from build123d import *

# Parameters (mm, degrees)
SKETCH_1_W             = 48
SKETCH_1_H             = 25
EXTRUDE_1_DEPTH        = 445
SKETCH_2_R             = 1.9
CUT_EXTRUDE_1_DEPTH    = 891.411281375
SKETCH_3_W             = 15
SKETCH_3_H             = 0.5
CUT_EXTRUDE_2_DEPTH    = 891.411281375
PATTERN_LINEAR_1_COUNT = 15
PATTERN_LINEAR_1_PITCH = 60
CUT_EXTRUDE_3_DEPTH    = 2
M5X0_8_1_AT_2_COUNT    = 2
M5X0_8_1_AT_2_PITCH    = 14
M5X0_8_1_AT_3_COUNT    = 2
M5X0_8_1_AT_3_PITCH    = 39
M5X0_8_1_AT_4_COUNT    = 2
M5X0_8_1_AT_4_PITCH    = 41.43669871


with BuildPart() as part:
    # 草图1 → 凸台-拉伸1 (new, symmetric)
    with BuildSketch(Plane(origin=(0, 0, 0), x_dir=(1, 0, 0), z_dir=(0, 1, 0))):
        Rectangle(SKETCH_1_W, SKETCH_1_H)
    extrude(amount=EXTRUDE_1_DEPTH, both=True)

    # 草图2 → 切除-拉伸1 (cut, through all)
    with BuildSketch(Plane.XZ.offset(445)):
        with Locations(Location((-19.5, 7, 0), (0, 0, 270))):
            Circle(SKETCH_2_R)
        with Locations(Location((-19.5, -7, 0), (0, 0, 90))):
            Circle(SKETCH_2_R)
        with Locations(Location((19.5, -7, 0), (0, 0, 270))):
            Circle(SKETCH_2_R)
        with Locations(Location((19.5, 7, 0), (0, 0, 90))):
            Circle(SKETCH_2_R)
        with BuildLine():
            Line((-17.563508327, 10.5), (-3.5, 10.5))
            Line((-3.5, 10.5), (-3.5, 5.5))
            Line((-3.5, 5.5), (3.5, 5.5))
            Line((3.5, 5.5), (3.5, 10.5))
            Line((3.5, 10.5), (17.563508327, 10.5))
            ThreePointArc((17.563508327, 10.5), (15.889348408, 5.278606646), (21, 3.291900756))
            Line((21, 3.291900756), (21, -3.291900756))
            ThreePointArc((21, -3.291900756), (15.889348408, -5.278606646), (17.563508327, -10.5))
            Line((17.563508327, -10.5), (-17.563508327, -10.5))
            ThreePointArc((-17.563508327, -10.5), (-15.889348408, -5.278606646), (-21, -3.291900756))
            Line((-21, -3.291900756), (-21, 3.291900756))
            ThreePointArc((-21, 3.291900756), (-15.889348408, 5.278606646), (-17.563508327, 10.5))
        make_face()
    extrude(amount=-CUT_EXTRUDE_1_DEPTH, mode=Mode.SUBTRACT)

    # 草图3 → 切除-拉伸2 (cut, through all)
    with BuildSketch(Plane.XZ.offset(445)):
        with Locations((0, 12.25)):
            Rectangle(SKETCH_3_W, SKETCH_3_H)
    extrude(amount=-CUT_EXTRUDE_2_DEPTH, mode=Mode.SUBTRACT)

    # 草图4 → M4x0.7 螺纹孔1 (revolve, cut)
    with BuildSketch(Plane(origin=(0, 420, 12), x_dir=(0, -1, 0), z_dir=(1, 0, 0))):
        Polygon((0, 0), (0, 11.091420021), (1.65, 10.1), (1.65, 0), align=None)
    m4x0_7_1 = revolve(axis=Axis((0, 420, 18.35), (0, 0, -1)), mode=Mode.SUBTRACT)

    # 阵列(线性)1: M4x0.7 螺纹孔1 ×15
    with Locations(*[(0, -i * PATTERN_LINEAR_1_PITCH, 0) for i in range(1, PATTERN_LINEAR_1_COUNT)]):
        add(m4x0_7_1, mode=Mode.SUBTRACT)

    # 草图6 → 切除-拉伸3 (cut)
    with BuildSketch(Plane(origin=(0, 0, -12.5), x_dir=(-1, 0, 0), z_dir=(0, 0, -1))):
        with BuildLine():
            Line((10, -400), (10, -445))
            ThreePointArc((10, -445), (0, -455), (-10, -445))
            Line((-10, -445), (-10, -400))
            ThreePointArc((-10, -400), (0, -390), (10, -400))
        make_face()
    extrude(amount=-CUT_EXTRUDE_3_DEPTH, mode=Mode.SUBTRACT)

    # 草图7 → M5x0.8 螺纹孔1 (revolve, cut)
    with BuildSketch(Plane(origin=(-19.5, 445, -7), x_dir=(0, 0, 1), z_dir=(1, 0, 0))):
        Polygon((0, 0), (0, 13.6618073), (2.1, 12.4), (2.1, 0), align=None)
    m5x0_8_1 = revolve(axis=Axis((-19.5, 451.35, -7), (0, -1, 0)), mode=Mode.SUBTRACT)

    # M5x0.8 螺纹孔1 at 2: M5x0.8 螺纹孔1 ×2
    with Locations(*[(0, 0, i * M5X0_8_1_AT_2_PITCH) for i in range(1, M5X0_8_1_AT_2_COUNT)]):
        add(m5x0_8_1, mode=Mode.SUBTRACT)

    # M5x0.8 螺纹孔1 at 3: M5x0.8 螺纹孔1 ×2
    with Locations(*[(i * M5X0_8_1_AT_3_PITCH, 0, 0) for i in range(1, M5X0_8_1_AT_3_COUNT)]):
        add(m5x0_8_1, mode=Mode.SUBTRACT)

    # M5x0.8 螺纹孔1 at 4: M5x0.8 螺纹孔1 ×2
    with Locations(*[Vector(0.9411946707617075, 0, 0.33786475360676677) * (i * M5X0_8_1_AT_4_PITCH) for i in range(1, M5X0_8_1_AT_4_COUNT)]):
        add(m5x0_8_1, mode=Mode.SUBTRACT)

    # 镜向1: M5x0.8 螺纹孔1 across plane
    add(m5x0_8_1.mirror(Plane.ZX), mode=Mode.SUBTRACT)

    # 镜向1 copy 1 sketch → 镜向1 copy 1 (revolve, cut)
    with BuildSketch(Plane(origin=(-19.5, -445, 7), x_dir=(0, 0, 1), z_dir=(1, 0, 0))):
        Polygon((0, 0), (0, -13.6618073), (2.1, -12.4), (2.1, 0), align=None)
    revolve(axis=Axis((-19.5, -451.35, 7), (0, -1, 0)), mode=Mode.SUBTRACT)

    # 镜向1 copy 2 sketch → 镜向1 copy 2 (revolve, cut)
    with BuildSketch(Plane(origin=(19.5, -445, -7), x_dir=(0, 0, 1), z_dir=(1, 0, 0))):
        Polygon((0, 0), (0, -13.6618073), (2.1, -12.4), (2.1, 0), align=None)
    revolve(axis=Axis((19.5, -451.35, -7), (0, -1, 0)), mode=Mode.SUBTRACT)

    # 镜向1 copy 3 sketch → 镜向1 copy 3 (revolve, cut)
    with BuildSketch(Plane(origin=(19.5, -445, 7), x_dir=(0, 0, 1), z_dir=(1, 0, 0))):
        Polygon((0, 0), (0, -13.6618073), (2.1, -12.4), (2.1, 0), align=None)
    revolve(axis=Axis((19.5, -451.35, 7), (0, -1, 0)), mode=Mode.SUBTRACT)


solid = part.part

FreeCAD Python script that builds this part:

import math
import FreeCAD as App
import Part
import Sketcher

V = App.Vector
Q = App.Units.Quantity

doc = App.newDocument("Part")
body = doc.addObject("PartDesign::Body", "Body")

# Sketch on XZ plane
sketch1 = doc.addObject("Sketcher::SketchObject", "Sketch")
body.addObject(sketch1)
sketch1.AttachmentSupport = (doc.XZ_Plane, [""])
sketch1.MapMode = "FlatFace"
sketch1.addGeometry([
    Part.LineSegment(V(-24, -12, 0), V(-24, 12, 0)),
    Part.LineSegment(V(-24, 12, 0), V(24, 12, 0)),
    Part.LineSegment(V(24, 12, 0), V(24, -12, 0)),
    Part.LineSegment(V(24, -12, 0), V(-24, -12, 0)),
], False)
sketch1.addConstraint([
    Sketcher.Constraint("Coincident", 0, 2, 1, 1),
    Sketcher.Constraint("Coincident", 1, 2, 2, 1),
    Sketcher.Constraint("Coincident", 2, 2, 3, 1),
    Sketcher.Constraint("Coincident", 3, 2, 0, 1),
    Sketcher.Constraint("Vertical", 0),
    Sketcher.Constraint("Horizontal", 1),
    Sketcher.Constraint("Vertical", 2),
    Sketcher.Constraint("Horizontal", 3),
    Sketcher.Constraint("Symmetric", 0, 2, 2, 2, -1, 1),
    Sketcher.Constraint("DistanceX", 1, 1, 1, 2, Q("48 mm")),
    Sketcher.Constraint("DistanceY", 0, 1, 0, 2, Q("25 mm")),
])
pad1 = doc.addObject("PartDesign::Pad", "Pad")
body.addObject(pad1)
pad1.Profile = sketch1
pad1.Length = 890
pad1.Midplane = True

# Sketch on XZ plane
sketch2 = doc.addObject("Sketcher::SketchObject", "Sketch001")
body.addObject(sketch2)
sketch2.AttachmentSupport = (doc.XZ_Plane, [""])
sketch2.MapMode = "FlatFace"
sketch2.AttachmentOffset = App.Placement(V(0, 0, 445), App.Rotation())
sketch2.addGeometry([
    Part.Circle(V(-19.5, 7, 0), V(0, 0, 1), 1.9),  # 0
    Part.Circle(V(-19.5, -7, 0), V(0, 0, 1), 1.9),  # 1
    Part.Circle(V(19.5, -7, 0), V(0, 0, 1), 1.9),  # 2
    Part.Circle(V(19.5, 7, 0), V(0, 0, 1), 1.9),  # 3
    Part.LineSegment(V(-3.5, 10.5, 0), V(-17.6, 10.5, 0)),  # 4
    Part.ArcOfCircle(Part.Circle(V(-19.5, 7, 0), V(0, 0, 1), 4), math.radians(-112), math.radians(61)),  # 5
    Part.LineSegment(V(-21, 3.3, 0), V(-21, -3.3, 0)),  # 6
    Part.ArcOfCircle(Part.Circle(V(-19.5, -7, 0), V(0, 0, 1), 4), math.radians(-61), math.radians(112)),  # 7
    Part.LineSegment(V(-17.6, -10.5, 0), V(17.6, -10.5, 0)),  # 8
    Part.ArcOfCircle(Part.Circle(V(19.5, -7, 0), V(0, 0, 1), 4), math.radians(68), math.radians(241)),  # 9
    Part.LineSegment(V(21, -3.3, 0), V(21, 3.3, 0)),  # 10
    Part.ArcOfCircle(Part.Circle(V(19.5, 7, 0), V(0, 0, 1), 4), math.radians(119), math.radians(292)),  # 11
    Part.LineSegment(V(17.6, 10.5, 0), V(3.5, 10.5, 0)),  # 12
    Part.LineSegment(V(3.5, 10.5, 0), V(3.5, 5.5, 0)),  # 13
    Part.LineSegment(V(3.5, 5.5, 0), V(-3.5, 5.5, 0)),  # 14
    Part.LineSegment(V(-3.5, 5.5, 0), V(-3.5, 10.5, 0)),  # 15
], False)
sketch2.addConstraint([
    Sketcher.Constraint("Coincident", 4, 2, 5, 2),
    Sketcher.Constraint("Coincident", 5, 1, 6, 1),
    Sketcher.Constraint("Coincident", 6, 2, 7, 2),
    Sketcher.Constraint("Coincident", 7, 1, 8, 1),
    Sketcher.Constraint("Coincident", 8, 2, 9, 2),
    Sketcher.Constraint("Coincident", 9, 1, 10, 1),
    Sketcher.Constraint("Coincident", 10, 2, 11, 2),
    Sketcher.Constraint("Coincident", 11, 1, 12, 1),
    Sketcher.Constraint("Coincident", 12, 2, 13, 1),
    Sketcher.Constraint("Coincident", 13, 2, 14, 1),
    Sketcher.Constraint("Coincident", 14, 2, 15, 1),
    Sketcher.Constraint("Coincident", 15, 2, 4, 1),
    Sketcher.Constraint("Horizontal", 4),
    Sketcher.Constraint("Vertical", 6),
    Sketcher.Constraint("Horizontal", 8),
    Sketcher.Constraint("Vertical", 10),
    Sketcher.Constraint("Horizontal", 12),
    Sketcher.Constraint("Vertical", 13),
    Sketcher.Constraint("Horizontal", 14),
    Sketcher.Constraint("Vertical", 15),
    Sketcher.Constraint("Coincident", 5, 3, 0, 3),
    Sketcher.Constraint("Coincident", 7, 3, 1, 3),
    Sketcher.Constraint("Coincident", 9, 3, 2, 3),
    Sketcher.Constraint("Coincident", 11, 3, 3, 3),
    Sketcher.Constraint("Equal", 0, 1),
    Sketcher.Constraint("Equal", 1, 2),
    Sketcher.Constraint("Equal", 2, 3),
    Sketcher.Constraint("Equal", 5, 7),
    Sketcher.Constraint("Equal", 7, 9),
    Sketcher.Constraint("Equal", 9, 11),
    Sketcher.Constraint("Symmetric", 0, 3, 2, 3, -1, 1),
    Sketcher.Constraint("Symmetric", 1, 3, 3, 3, -1, 1),
    Sketcher.Constraint("Symmetric", 1, 3, 2, 3, -2),
    Sketcher.Constraint("Symmetric", 12, 2, 15, 2, -2),
    Sketcher.Constraint("Horizontal", 6, 2, 9, 1),
    Sketcher.Constraint("Vertical", 4, 2, 7, 1),
    Sketcher.Constraint("Radius", 5, Q("4 mm")),
    Sketcher.Constraint("Diameter", 0, Q("3.8 mm")),
    Sketcher.Constraint("DistanceX", 14, 2, 14, 1, Q("7 mm")),
    Sketcher.Constraint("DistanceY", 13, 2, 13, 1, Q("5 mm")),
    Sketcher.Constraint("DistanceY", -1, 1, 0, 3, Q("7 mm")),
    Sketcher.Constraint("DistanceX", 5, 1, -1, 1, Q("21 mm")),
    Sketcher.Constraint("DistanceX", 1, 3, 2, 3, Q("39 mm")),
    Sketcher.Constraint("DistanceY", -1, 1, 4, 2, Q("10.5 mm")),
])
pocket1 = doc.addObject("PartDesign::Pocket", "Pocket")
body.addObject(pocket1)
pocket1.Profile = sketch2
pocket1.Type = "ThroughAll"

# Sketch on XZ plane
sketch3 = doc.addObject("Sketcher::SketchObject", "Sketch002")
body.addObject(sketch3)
sketch3.AttachmentSupport = (doc.XZ_Plane, [""])
sketch3.MapMode = "FlatFace"
sketch3.AttachmentOffset = App.Placement(V(0, 0, 445), App.Rotation())
sketch3.addGeometry([
    Part.LineSegment(V(-7.5, 12.5, 0), V(-7.5, 12, 0)),
    Part.LineSegment(V(-7.5, 12, 0), V(7.5, 12, 0)),
    Part.LineSegment(V(7.5, 12, 0), V(7.5, 12.5, 0)),
    Part.LineSegment(V(7.5, 12.5, 0), V(-7.5, 12.5, 0)),
], False)
sketch3.addConstraint([
    Sketcher.Constraint("Coincident", 0, 2, 1, 1),
    Sketcher.Constraint("Coincident", 1, 2, 2, 1),
    Sketcher.Constraint("Coincident", 2, 2, 3, 1),
    Sketcher.Constraint("Coincident", 3, 2, 0, 1),
    Sketcher.Constraint("Vertical", 0),
    Sketcher.Constraint("Horizontal", 1),
    Sketcher.Constraint("Vertical", 2),
    Sketcher.Constraint("Horizontal", 3),
    Sketcher.Constraint("DistanceX", 1, 1, 1, 2, Q("15 mm")),
    Sketcher.Constraint("DistanceY", 0, 2, 0, 1, Q("0.5 mm")),
    Sketcher.Constraint("DistanceY", -1, 1, 0, 2, Q("12 mm")),
    Sketcher.Constraint("DistanceX", 0, 2, -1, 1, Q("7.5 mm")),
])
pocket2 = doc.addObject("PartDesign::Pocket", "Pocket001")
body.addObject(pocket2)
pocket2.Profile = sketch3
pocket2.Type = "ThroughAll"

# Sketch on YZ plane
sketch4 = doc.addObject("Sketcher::SketchObject", "Sketch003")
body.addObject(sketch4)
sketch4.AttachmentSupport = (doc.YZ_Plane, [""])
sketch4.MapMode = "FlatFace"
sketch4.addGeometry([
    Part.LineSegment(V(420, 0.9, 0), V(420, 12, 0)),
    Part.LineSegment(V(420, 12, 0), V(418.4, 12, 0)),
    Part.LineSegment(V(418.4, 12, 0), V(418.4, 1.9, 0)),
    Part.LineSegment(V(418.4, 1.9, 0), V(420, 0.9, 0)),
], False)
sketch4.addGeometry(Part.LineSegment(V(420, 12, 0), V(420, 0.9, 0)), True)  # axis
sketch4.addConstraint([
    Sketcher.Constraint("Coincident", 0, 2, 1, 1),
    Sketcher.Constraint("Coincident", 1, 2, 2, 1),
    Sketcher.Constraint("Coincident", 2, 2, 3, 1),
    Sketcher.Constraint("Coincident", 3, 2, 0, 1),
    Sketcher.Constraint("Vertical", 0),
    Sketcher.Constraint("Horizontal", 1),
    Sketcher.Constraint("Vertical", 2),
    Sketcher.Constraint("Vertical", 4),
    Sketcher.Constraint("Coincident", 4, 1, 0, 2),
    Sketcher.Constraint("Equal", 0, 4),
    Sketcher.Constraint("Angle", 3, Q("-31 deg")),
    Sketcher.Constraint("DistanceY", 2, 2, 2, 1, Q("10.1 mm")),
    Sketcher.Constraint("DistanceX", -1, 1, 0, 2, Q("420 mm")),
    Sketcher.Constraint("DistanceY", -1, 1, 0, 2, Q("12 mm")),
    Sketcher.Constraint("DistanceX", 1, 2, 1, 1, Q("1.65 mm")),
])
groove = doc.addObject("PartDesign::Groove", "Groove")
body.addObject(groove)
groove.Profile = sketch4
groove.ReferenceAxis = (sketch4, ["Axis0"])
groove.Angle = 360
doc.recompute()

linearpattern = doc.addObject("PartDesign::LinearPattern", "LinearPattern")
body.addObject(linearpattern)
linearpattern.Originals = [groove]
linearpattern.Direction = (doc.Y_Axis, [""])
linearpattern.Mode = "offset"
linearpattern.Offset = 60
linearpattern.Occurrences = 15
linearpattern.Reversed = True
body.Tip = linearpattern

# Sketch on XY plane
sketch5 = doc.addObject("Sketcher::SketchObject", "Sketch004")
body.addObject(sketch5)
sketch5.AttachmentSupport = (doc.XY_Plane, [""])
sketch5.MapMode = "FlatFace"
sketch5.AttachmentOffset = App.Placement(V(0, 0, -12.5), App.Rotation())
sketch5.addGeometry([
    Part.LineSegment(V(-10, -445, 0), V(-10, -400, 0)),
    Part.ArcOfCircle(Part.Circle(V(0, -400, 0), V(0, 0, 1), 10), math.radians(0), math.radians(180)),
    Part.LineSegment(V(10, -400, 0), V(10, -445, 0)),
    Part.ArcOfCircle(Part.Circle(V(0, -445, 0), V(0, 0, 1), 10), math.radians(180), math.radians(360)),
], False)
sketch5.addConstraint([
    Sketcher.Constraint("Tangent", 0, 2, 1, 2),
    Sketcher.Constraint("Tangent", 1, 1, 2, 1),
    Sketcher.Constraint("Tangent", 2, 2, 3, 2),
    Sketcher.Constraint("Tangent", 3, 1, 0, 1),
    Sketcher.Constraint("Vertical", 0),
    Sketcher.Constraint("Vertical", 2),
    Sketcher.Constraint("PointOnObject", 1, 3, -2),
    Sketcher.Constraint("Radius", 1, Q("10 mm")),
    Sketcher.Constraint("DistanceY", 0, 1, 0, 2, Q("45 mm")),
    Sketcher.Constraint("DistanceY", 1, 3, -1, 1, Q("400 mm")),
])
pocket3 = doc.addObject("PartDesign::Pocket", "Pocket002")
body.addObject(pocket3)
pocket3.Profile = sketch5
pocket3.Length = 2
pocket3.Reversed = True

# Sketch on YZ plane
sketch6 = doc.addObject("Sketcher::SketchObject", "Sketch005")
body.addObject(sketch6)
sketch6.AttachmentSupport = (doc.YZ_Plane, [""])
sketch6.MapMode = "FlatFace"
sketch6.AttachmentOffset = App.Placement(V(0, 0, -19.5), App.Rotation())
sketch6.addGeometry([
    Part.LineSegment(V(431.3, -7, 0), V(445, -7, 0)),
    Part.LineSegment(V(445, -7, 0), V(445, -4.9, 0)),
    Part.LineSegment(V(445, -4.9, 0), V(432.6, -4.9, 0)),
    Part.LineSegment(V(432.6, -4.9, 0), V(431.3, -7, 0)),
], False)
sketch6.addGeometry(Part.LineSegment(V(445, -7, 0), V(431.3, -7, 0)), True)  # axis
sketch6.addConstraint([
    Sketcher.Constraint("Coincident", 0, 2, 1, 1),
    Sketcher.Constraint("Coincident", 1, 2, 2, 1),
    Sketcher.Constraint("Coincident", 2, 2, 3, 1),
    Sketcher.Constraint("Coincident", 3, 2, 0, 1),
    Sketcher.Constraint("Horizontal", 0),
    Sketcher.Constraint("Vertical", 1),
    Sketcher.Constraint("Horizontal", 2),
    Sketcher.Constraint("Horizontal", 4),
    Sketcher.Constraint("Coincident", 4, 1, 0, 2),
    Sketcher.Constraint("Equal", 0, 4),
    Sketcher.Constraint("Angle", 3, Q("-121 deg")),
    Sketcher.Constraint("DistanceX", 2, 2, 2, 1, Q("12.4 mm")),
    Sketcher.Constraint("DistanceY", 1, 1, 1, 2, Q("2.1 mm")),
    Sketcher.Constraint("DistanceX", -1, 1, 0, 2, Q("445 mm")),
    Sketcher.Constraint("DistanceY", 0, 2, -1, 1, Q("7 mm")),
])
groove2 = doc.addObject("PartDesign::Groove", "Groove001")
body.addObject(groove2)
groove2.Profile = sketch6
groove2.ReferenceAxis = (sketch6, ["Axis0"])
groove2.Angle = 360
doc.recompute()

linearpattern2 = doc.addObject("PartDesign::LinearPattern", "LinearPattern001")
body.addObject(linearpattern2)
linearpattern2.Originals = [groove2]
linearpattern2.Direction = (doc.Z_Axis, [""])
linearpattern2.Mode = "offset"
linearpattern2.Offset = 14
linearpattern2.Occurrences = 2
body.Tip = linearpattern2
doc.recompute()

linearpattern3 = doc.addObject("PartDesign::LinearPattern", "LinearPattern002")
body.addObject(linearpattern3)
linearpattern3.Originals = [groove2]
linearpattern3.Direction = (doc.X_Axis, [""])
linearpattern3.Mode = "offset"
linearpattern3.Offset = 39
linearpattern3.Occurrences = 2
body.Tip = linearpattern3
doc.recompute()

datumline = doc.addObject("PartDesign::Line", "DatumLine")
body.addObject(datumline)
datumline.Placement = App.Placement(V(0, 0, 0), App.Rotation(V(0, 0, 1), V(0.941194671, 0, 0.337864754)))
linearpattern4 = doc.addObject("PartDesign::LinearPattern", "LinearPattern003")
body.addObject(linearpattern4)
linearpattern4.Originals = [groove2]
linearpattern4.Direction = (datumline, [""])
linearpattern4.Mode = "offset"
linearpattern4.Offset = 41.436699
linearpattern4.Occurrences = 2
body.Tip = linearpattern4
doc.recompute()

mirrored = doc.addObject("PartDesign::Mirrored", "Mirrored")
body.addObject(mirrored)
mirrored.Originals = [groove2]
mirrored.MirrorPlane = (doc.XZ_Plane, [""])
body.Tip = mirrored

# Sketch on YZ plane
sketch7 = doc.addObject("Sketcher::SketchObject", "Sketch006")
body.addObject(sketch7)
sketch7.AttachmentSupport = (doc.YZ_Plane, [""])
sketch7.MapMode = "FlatFace"
sketch7.AttachmentOffset = App.Placement(V(0, 0, -19.5), App.Rotation())
sketch7.addGeometry([
    Part.LineSegment(V(-445, 7, 0), V(-431.3, 7, 0)),
    Part.LineSegment(V(-431.3, 7, 0), V(-432.6, 9.1, 0)),
    Part.LineSegment(V(-432.6, 9.1, 0), V(-445, 9.1, 0)),
    Part.LineSegment(V(-445, 9.1, 0), V(-445, 7, 0)),
], False)
sketch7.addGeometry(Part.LineSegment(V(-431.3, 7, 0), V(-445, 7, 0)), True)  # axis
sketch7.addConstraint([
    Sketcher.Constraint("Coincident", 0, 2, 1, 1),
    Sketcher.Constraint("Coincident", 1, 2, 2, 1),
    Sketcher.Constraint("Coincident", 2, 2, 3, 1),
    Sketcher.Constraint("Coincident", 3, 2, 0, 1),
    Sketcher.Constraint("Horizontal", 0),
    Sketcher.Constraint("Horizontal", 2),
    Sketcher.Constraint("Vertical", 3),
    Sketcher.Constraint("Horizontal", 4),
    Sketcher.Constraint("Coincident", 4, 1, 0, 2),
    Sketcher.Constraint("Vertical", 2, 2, 4, 2),
    Sketcher.Constraint("Angle", 1, Q("121 deg")),
    Sketcher.Constraint("DistanceX", 2, 2, 2, 1, Q("12.4 mm")),
    Sketcher.Constraint("DistanceY", 3, 2, 3, 1, Q("2.1 mm")),
    Sketcher.Constraint("DistanceY", -1, 1, 0, 2, Q("7 mm")),
    Sketcher.Constraint("DistanceX", 2, 2, -1, 1, Q("445 mm")),
])
groove3 = doc.addObject("PartDesign::Groove", "Groove002")
body.addObject(groove3)
groove3.Profile = sketch7
groove3.ReferenceAxis = (sketch7, ["Axis0"])
groove3.Angle = 360

# Sketch on YZ plane
sketch8 = doc.addObject("Sketcher::SketchObject", "Sketch007")
body.addObject(sketch8)
sketch8.AttachmentSupport = (doc.YZ_Plane, [""])
sketch8.MapMode = "FlatFace"
sketch8.AttachmentOffset = App.Placement(V(0, 0, 19.5), App.Rotation())
sketch8.addGeometry([
    Part.LineSegment(V(-445, -7, 0), V(-431.3, -7, 0)),
    Part.LineSegment(V(-431.3, -7, 0), V(-432.6, -4.9, 0)),
    Part.LineSegment(V(-432.6, -4.9, 0), V(-445, -4.9, 0)),
    Part.LineSegment(V(-445, -4.9, 0), V(-445, -7, 0)),
], False)
sketch8.addGeometry(Part.LineSegment(V(-431.3, -7, 0), V(-445, -7, 0)), True)  # axis
sketch8.addConstraint([
    Sketcher.Constraint("Coincident", 0, 2, 1, 1),
    Sketcher.Constraint("Coincident", 1, 2, 2, 1),
    Sketcher.Constraint("Coincident", 2, 2, 3, 1),
    Sketcher.Constraint("Coincident", 3, 2, 0, 1),
    Sketcher.Constraint("Horizontal", 0),
    Sketcher.Constraint("Horizontal", 2),
    Sketcher.Constraint("Vertical", 3),
    Sketcher.Constraint("Horizontal", 4),
    Sketcher.Constraint("Coincident", 4, 1, 0, 2),
    Sketcher.Constraint("Vertical", 2, 2, 4, 2),
    Sketcher.Constraint("Angle", 1, Q("121 deg")),
    Sketcher.Constraint("DistanceX", 2, 2, 2, 1, Q("12.4 mm")),
    Sketcher.Constraint("DistanceY", 3, 2, 3, 1, Q("2.1 mm")),
    Sketcher.Constraint("DistanceY", 0, 2, -1, 1, Q("7 mm")),
    Sketcher.Constraint("DistanceX", 2, 2, -1, 1, Q("445 mm")),
])
groove4 = doc.addObject("PartDesign::Groove", "Groove003")
body.addObject(groove4)
groove4.Profile = sketch8
groove4.ReferenceAxis = (sketch8, ["Axis0"])
groove4.Angle = 360

# Sketch on YZ plane
sketch9 = doc.addObject("Sketcher::SketchObject", "Sketch008")
body.addObject(sketch9)
sketch9.AttachmentSupport = (doc.YZ_Plane, [""])
sketch9.MapMode = "FlatFace"
sketch9.AttachmentOffset = App.Placement(V(0, 0, 19.5), App.Rotation())
sketch9.addGeometry([
    Part.LineSegment(V(-445, 7, 0), V(-431.3, 7, 0)),
    Part.LineSegment(V(-431.3, 7, 0), V(-432.6, 9.1, 0)),
    Part.LineSegment(V(-432.6, 9.1, 0), V(-445, 9.1, 0)),
    Part.LineSegment(V(-445, 9.1, 0), V(-445, 7, 0)),
], False)
sketch9.addGeometry(Part.LineSegment(V(-431.3, 7, 0), V(-445, 7, 0)), True)  # axis
sketch9.addConstraint([
    Sketcher.Constraint("Coincident", 0, 2, 1, 1),
    Sketcher.Constraint("Coincident", 1, 2, 2, 1),
    Sketcher.Constraint("Coincident", 2, 2, 3, 1),
    Sketcher.Constraint("Coincident", 3, 2, 0, 1),
    Sketcher.Constraint("Horizontal", 0),
    Sketcher.Constraint("Horizontal", 2),
    Sketcher.Constraint("Vertical", 3),
    Sketcher.Constraint("Horizontal", 4),
    Sketcher.Constraint("Coincident", 4, 1, 0, 2),
    Sketcher.Constraint("Vertical", 2, 2, 4, 2),
    Sketcher.Constraint("Angle", 1, Q("121 deg")),
    Sketcher.Constraint("DistanceX", 2, 2, 2, 1, Q("12.4 mm")),
    Sketcher.Constraint("DistanceY", 3, 2, 3, 1, Q("2.1 mm")),
    Sketcher.Constraint("DistanceY", -1, 1, 0, 2, Q("7 mm")),
    Sketcher.Constraint("DistanceX", 2, 2, -1, 1, Q("445 mm")),
])
groove5 = doc.addObject("PartDesign::Groove", "Groove004")
body.addObject(groove5)
groove5.Profile = sketch9
groove5.ReferenceAxis = (sketch9, ["Axis0"])
groove5.Angle = 360

doc.recompute()
